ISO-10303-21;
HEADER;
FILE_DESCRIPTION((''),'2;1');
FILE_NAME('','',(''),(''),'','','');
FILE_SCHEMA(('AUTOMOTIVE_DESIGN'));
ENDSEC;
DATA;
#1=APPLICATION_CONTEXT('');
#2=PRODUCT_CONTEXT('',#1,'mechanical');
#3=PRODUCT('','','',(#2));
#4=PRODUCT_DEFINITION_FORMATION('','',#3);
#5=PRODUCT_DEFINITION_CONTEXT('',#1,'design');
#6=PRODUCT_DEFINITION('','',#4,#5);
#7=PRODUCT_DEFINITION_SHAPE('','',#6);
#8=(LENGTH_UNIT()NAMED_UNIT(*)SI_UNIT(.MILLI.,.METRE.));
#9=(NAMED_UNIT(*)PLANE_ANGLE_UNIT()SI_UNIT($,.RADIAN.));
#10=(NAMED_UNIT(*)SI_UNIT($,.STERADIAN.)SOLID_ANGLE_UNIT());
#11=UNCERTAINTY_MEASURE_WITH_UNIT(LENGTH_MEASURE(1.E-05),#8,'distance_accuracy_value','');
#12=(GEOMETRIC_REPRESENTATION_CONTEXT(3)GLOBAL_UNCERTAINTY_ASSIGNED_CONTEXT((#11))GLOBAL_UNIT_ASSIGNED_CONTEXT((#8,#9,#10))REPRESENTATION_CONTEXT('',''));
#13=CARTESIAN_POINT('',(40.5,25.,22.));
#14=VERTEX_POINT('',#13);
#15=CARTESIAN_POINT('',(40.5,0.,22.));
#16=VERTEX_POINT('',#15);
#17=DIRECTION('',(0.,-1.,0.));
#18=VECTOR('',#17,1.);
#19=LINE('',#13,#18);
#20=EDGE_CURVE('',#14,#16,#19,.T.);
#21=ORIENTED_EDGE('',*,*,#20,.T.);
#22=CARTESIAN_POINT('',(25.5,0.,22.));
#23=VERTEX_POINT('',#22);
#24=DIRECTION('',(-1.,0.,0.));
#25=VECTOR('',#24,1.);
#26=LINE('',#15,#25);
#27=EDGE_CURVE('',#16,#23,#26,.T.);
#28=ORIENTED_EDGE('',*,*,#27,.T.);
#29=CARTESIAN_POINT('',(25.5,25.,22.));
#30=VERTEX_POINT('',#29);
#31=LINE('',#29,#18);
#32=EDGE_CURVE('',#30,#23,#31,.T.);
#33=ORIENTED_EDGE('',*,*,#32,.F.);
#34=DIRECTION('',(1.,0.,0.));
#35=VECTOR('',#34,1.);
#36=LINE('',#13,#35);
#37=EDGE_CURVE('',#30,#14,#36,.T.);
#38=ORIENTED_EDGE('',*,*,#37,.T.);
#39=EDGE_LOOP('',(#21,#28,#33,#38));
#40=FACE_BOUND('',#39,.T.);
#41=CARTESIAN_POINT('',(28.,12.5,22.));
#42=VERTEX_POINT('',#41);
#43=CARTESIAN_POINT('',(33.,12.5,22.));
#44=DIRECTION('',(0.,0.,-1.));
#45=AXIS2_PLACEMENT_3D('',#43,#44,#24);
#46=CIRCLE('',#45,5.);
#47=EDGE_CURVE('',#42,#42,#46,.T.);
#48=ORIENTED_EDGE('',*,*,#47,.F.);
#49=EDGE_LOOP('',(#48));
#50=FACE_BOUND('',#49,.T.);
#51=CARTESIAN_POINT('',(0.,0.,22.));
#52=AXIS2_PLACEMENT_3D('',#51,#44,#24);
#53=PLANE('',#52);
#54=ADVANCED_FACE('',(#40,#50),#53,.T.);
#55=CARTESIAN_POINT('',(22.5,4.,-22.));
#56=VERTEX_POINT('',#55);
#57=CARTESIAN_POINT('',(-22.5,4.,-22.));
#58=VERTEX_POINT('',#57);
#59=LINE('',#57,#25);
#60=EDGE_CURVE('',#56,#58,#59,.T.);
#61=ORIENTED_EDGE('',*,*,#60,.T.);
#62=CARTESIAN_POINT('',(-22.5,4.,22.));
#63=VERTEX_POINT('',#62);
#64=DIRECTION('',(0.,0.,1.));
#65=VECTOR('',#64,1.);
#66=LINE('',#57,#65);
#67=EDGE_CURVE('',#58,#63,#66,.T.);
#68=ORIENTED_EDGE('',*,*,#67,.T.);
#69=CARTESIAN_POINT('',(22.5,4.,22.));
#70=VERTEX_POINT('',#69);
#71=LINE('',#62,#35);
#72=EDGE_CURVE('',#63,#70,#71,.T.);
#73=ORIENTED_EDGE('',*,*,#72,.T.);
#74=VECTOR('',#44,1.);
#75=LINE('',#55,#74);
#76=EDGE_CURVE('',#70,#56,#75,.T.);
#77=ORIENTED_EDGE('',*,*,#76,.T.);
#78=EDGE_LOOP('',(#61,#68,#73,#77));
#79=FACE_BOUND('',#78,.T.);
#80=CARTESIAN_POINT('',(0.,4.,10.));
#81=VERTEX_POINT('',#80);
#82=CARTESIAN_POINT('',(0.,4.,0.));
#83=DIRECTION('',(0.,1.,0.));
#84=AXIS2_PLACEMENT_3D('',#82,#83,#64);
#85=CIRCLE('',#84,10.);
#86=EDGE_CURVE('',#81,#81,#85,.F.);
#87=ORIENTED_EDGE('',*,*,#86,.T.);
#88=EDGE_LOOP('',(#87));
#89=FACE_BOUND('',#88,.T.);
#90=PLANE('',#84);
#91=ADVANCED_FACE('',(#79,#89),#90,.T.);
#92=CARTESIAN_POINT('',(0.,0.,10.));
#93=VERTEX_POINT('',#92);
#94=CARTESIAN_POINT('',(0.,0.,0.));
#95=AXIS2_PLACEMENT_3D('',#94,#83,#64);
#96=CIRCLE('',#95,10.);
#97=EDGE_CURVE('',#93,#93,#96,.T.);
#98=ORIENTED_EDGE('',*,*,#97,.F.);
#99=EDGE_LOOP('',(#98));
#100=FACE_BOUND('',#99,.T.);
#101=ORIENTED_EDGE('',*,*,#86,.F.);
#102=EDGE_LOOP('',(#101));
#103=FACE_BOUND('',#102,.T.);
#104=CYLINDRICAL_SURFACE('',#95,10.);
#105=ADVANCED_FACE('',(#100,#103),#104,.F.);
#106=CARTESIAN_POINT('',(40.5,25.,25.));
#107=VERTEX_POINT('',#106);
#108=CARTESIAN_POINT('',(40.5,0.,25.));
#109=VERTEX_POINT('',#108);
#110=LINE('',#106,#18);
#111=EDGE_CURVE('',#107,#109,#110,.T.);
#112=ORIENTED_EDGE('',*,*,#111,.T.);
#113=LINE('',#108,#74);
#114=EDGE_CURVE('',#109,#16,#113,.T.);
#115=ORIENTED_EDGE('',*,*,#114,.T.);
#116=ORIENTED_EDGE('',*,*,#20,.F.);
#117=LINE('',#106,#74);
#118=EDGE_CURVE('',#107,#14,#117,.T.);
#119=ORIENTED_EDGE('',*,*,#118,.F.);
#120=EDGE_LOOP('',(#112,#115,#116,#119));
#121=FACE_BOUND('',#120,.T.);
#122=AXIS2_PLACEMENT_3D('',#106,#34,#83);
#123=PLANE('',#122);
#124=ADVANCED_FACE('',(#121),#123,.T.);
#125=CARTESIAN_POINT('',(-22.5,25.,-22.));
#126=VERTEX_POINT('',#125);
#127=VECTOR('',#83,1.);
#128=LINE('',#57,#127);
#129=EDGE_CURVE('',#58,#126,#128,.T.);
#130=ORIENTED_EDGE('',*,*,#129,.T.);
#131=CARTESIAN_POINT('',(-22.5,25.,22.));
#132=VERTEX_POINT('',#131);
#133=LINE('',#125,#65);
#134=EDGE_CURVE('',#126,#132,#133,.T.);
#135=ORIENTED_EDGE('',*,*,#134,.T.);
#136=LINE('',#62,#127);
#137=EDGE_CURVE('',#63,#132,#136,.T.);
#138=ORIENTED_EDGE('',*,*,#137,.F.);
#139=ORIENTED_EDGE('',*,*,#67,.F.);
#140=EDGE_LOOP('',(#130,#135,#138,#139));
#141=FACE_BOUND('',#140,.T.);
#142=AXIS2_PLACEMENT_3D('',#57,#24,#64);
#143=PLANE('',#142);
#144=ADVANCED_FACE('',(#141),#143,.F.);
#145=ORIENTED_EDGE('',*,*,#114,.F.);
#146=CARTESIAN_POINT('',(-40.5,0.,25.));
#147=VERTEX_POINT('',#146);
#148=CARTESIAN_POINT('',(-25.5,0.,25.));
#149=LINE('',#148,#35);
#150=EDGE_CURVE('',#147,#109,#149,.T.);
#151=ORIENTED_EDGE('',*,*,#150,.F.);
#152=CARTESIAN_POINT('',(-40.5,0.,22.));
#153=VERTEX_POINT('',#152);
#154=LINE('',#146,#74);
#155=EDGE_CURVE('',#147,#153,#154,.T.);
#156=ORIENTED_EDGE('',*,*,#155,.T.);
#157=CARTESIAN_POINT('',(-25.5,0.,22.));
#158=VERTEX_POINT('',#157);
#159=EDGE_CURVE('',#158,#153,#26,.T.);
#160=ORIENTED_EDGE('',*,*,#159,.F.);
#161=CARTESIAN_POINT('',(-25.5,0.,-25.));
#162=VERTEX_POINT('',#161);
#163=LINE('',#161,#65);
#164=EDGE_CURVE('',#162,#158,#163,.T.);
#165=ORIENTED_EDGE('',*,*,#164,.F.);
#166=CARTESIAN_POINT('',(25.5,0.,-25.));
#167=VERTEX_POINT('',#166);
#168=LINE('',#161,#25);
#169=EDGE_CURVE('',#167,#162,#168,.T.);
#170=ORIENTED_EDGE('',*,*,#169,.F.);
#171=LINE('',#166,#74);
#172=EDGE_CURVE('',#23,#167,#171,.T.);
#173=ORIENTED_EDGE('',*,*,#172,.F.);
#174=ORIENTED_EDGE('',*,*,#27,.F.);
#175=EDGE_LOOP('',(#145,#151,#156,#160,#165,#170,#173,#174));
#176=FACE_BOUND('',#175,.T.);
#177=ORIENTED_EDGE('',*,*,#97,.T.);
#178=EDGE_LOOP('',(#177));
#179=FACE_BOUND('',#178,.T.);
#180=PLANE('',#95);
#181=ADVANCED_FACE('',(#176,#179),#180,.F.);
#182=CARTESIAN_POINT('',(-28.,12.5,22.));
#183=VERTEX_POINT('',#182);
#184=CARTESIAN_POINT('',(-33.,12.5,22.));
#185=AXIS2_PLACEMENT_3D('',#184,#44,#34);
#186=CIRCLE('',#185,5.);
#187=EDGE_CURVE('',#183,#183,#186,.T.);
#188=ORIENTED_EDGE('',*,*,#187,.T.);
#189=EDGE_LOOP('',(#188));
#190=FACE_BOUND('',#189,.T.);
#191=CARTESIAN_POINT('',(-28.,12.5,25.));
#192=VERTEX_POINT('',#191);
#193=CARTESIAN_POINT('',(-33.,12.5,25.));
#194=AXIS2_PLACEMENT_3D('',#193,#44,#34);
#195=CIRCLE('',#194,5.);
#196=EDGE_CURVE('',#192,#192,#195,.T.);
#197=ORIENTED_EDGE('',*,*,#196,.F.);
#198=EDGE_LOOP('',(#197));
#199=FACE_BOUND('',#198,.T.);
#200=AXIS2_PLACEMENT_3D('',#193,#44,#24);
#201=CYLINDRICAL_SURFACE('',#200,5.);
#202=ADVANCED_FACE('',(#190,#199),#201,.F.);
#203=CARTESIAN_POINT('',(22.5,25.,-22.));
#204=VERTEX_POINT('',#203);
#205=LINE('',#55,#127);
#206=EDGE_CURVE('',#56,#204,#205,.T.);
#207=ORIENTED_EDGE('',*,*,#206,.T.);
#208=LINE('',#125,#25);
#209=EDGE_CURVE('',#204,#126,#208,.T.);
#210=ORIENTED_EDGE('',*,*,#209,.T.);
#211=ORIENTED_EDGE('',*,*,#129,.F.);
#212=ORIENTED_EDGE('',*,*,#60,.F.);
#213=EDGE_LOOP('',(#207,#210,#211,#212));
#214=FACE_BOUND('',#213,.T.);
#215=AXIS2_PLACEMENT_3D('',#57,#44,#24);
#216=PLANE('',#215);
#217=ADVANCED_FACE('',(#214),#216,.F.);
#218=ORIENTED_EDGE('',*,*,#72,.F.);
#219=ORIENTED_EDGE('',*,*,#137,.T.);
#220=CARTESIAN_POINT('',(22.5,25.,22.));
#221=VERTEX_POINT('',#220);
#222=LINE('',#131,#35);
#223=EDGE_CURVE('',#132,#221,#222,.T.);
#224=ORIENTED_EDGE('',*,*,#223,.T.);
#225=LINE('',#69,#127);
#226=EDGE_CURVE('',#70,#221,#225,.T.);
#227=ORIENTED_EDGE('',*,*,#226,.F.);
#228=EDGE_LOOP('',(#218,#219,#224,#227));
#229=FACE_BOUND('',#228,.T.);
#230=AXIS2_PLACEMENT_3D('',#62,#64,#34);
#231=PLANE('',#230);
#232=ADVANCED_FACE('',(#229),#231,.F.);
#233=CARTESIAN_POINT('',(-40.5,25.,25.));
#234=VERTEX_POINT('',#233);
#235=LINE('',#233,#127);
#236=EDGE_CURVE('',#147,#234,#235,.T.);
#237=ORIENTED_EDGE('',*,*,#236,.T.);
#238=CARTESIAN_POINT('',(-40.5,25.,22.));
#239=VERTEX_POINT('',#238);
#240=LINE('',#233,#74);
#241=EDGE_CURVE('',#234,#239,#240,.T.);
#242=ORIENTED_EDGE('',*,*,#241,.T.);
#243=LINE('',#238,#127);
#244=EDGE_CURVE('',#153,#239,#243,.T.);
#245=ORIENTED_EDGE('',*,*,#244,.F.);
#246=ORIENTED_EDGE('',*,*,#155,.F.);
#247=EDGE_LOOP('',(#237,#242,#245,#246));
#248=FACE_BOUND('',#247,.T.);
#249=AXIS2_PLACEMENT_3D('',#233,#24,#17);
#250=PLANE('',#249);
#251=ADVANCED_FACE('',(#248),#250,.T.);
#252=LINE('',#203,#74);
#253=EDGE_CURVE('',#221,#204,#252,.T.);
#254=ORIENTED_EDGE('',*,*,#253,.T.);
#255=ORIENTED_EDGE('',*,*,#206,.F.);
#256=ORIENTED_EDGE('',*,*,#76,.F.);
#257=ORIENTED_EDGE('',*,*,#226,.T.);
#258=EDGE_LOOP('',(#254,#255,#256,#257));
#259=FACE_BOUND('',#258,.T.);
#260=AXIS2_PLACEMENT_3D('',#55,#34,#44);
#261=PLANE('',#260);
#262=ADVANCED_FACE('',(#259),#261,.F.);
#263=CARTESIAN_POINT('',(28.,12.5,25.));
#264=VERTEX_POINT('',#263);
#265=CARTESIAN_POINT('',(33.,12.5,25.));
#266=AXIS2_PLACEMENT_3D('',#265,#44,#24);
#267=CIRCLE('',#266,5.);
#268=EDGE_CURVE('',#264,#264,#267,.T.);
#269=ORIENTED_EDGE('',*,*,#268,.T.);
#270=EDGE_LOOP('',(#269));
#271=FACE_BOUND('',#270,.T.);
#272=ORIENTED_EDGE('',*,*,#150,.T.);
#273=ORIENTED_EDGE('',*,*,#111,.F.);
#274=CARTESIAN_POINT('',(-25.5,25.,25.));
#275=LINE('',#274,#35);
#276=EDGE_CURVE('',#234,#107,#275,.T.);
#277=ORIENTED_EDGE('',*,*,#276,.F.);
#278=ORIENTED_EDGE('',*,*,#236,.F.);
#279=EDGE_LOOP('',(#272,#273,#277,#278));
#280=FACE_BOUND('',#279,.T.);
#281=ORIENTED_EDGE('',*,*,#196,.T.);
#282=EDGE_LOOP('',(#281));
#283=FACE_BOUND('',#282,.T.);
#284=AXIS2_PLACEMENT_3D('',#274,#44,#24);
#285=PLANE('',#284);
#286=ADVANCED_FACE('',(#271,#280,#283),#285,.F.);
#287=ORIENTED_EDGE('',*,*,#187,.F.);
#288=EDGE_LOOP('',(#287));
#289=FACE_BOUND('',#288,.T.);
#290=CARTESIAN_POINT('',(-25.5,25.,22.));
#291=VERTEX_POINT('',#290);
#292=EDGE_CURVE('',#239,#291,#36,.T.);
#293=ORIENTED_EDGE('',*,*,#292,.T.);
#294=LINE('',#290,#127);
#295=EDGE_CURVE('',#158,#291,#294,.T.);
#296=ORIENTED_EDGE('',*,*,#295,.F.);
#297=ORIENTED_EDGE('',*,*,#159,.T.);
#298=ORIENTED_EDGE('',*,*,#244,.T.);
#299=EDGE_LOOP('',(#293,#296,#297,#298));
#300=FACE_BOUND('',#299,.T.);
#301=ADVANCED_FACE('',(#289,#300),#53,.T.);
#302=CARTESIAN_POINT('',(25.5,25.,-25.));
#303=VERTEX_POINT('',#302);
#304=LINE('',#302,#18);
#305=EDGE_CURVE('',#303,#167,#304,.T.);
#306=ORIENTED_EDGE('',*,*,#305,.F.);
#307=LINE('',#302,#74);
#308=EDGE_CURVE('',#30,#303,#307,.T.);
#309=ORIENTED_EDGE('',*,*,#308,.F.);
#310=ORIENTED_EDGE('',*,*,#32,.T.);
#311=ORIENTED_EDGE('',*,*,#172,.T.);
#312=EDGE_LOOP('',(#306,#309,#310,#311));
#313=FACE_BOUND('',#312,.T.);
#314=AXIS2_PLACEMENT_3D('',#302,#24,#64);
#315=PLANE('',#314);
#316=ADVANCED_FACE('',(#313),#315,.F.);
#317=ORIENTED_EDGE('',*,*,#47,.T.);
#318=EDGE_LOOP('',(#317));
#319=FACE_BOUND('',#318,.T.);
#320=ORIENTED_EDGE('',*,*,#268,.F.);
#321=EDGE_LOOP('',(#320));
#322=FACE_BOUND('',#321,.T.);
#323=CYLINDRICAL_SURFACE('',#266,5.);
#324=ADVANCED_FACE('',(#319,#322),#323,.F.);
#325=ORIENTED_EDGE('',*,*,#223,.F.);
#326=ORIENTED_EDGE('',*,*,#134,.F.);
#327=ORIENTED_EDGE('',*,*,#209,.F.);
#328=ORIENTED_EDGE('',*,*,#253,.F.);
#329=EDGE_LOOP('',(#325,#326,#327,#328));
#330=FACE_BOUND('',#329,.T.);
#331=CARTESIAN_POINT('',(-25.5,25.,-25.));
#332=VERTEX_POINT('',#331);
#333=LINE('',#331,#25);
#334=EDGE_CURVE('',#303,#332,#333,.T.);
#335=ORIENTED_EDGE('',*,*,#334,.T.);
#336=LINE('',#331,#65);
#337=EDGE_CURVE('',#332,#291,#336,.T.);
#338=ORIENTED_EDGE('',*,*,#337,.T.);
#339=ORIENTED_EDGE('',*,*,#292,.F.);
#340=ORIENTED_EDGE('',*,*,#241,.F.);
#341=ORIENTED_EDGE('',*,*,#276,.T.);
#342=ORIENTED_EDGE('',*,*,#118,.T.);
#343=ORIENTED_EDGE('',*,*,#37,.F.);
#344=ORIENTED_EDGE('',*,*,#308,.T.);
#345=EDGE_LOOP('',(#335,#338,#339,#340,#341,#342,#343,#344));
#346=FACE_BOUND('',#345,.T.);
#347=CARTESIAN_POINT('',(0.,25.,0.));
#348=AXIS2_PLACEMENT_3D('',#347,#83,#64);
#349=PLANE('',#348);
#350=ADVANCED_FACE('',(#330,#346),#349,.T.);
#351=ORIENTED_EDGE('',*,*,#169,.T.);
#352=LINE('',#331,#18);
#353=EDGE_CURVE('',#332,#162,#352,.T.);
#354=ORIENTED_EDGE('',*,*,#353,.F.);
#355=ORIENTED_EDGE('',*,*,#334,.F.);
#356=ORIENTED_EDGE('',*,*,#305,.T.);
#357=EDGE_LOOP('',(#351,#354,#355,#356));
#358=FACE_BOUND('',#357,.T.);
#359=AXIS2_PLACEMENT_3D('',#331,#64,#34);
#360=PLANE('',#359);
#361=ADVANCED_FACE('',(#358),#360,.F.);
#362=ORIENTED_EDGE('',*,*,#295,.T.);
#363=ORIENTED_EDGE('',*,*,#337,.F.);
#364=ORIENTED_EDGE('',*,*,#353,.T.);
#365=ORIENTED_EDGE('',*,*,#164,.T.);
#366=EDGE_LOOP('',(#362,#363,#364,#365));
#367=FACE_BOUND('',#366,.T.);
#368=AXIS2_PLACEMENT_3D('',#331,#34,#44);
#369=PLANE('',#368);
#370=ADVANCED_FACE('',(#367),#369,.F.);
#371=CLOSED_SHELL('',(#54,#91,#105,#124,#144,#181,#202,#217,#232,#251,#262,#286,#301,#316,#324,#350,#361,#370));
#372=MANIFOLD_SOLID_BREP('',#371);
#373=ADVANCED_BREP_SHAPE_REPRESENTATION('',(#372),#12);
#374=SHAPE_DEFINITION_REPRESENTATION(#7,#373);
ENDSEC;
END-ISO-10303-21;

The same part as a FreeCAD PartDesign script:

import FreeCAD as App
import Part
import Sketcher

V = App.Vector

doc = App.newDocument("Part")
params = doc.addObject("Spreadsheet::Sheet", "Params")
for row, (alias, value) in enumerate([
    ("sketch1_width", "51 mm"),
    ("sketch1_height", "50 mm"),
    ("pad1_length", "25 mm"),
    ("sketch2_diameter", "20 mm"),
    ("sketch3_width", "45 mm"),
    ("sketch3_height", "44 mm"),
    ("pocket2_length", "21 mm"),
    ("sketch4_diameter", "10 mm"),
    ("sketch4_width", "81 mm"),
    ("sketch4_height", "25 mm"),
    ("pad2_length", "3 mm"),
], start=1):
    params.set(f"A{row}", alias)
    params.set(f"B{row}", "=" + value)
    params.setAlias(f"B{row}", alias)

body = doc.addObject("PartDesign::Body", "Body")

# Sketch on XZ plane
sketch1 = body.newObject("Sketcher::SketchObject", "Sketch")
sketch1.AttachmentSupport = (doc.getObject("XZ_Plane"), [""])
sketch1.MapMode = "FlatFace"
sketch1.addGeometry(Part.LineSegment(V(-26, -25, 0), V(-26, 25, 0)), False)
sketch1.addGeometry(Part.LineSegment(V(-26, 25, 0), V(26, 25, 0)), False)
sketch1.addGeometry(Part.LineSegment(V(26, 25, 0), V(26, -25, 0)), False)
sketch1.addGeometry(Part.LineSegment(V(26, -25, 0), V(-26, -25, 0)), False)
sketch1.addConstraint(Sketcher.Constraint("Coincident", 0, 2, 1, 1))
sketch1.addConstraint(Sketcher.Constraint("Coincident", 1, 2, 2, 1))
sketch1.addConstraint(Sketcher.Constraint("Coincident", 2, 2, 3, 1))
sketch1.addConstraint(Sketcher.Constraint("Coincident", 3, 2, 0, 1))
sketch1.addConstraint(Sketcher.Constraint("Vertical", 0))
sketch1.addConstraint(Sketcher.Constraint("Horizontal", 1))
sketch1.addConstraint(Sketcher.Constraint("Vertical", 2))
sketch1.addConstraint(Sketcher.Constraint("Horizontal", 3))
sketch1.addConstraint(Sketcher.Constraint("Symmetric", 0, 2, 2, 2, -1, 1))
sketch1.addConstraint(Sketcher.Constraint("DistanceX", 1, 1, 1, 2, 51.0))
sketch1.addConstraint(Sketcher.Constraint("DistanceY", 0, 1, 0, 2, 50.0))
sketch1.setExpression("Constraints[9]", "Params.sketch1_width")
sketch1.setExpression("Constraints[10]", "Params.sketch1_height")
pad1 = body.newObject("PartDesign::Pad", "Pad")
pad1.Profile = sketch1
pad1.setExpression("Length", "Params.pad1_length")
pad1.Reversed = True

# Sketch on XZ plane
sketch2 = body.newObject("Sketcher::SketchObject", "Sketch001")
sketch2.AttachmentSupport = (doc.getObject("XZ_Plane"), [""])
sketch2.MapMode = "FlatFace"
sketch2.AttachmentOffset = App.Placement(V(0, 0, -25), App.Rotation())
sketch2.addGeometry(Part.Circle(V(0, 0, 0), V(0, 0, 1), 10), False)
sketch2.addConstraint(Sketcher.Constraint("Coincident", 0, 3, -1, 1))
sketch2.addConstraint(Sketcher.Constraint("Diameter", 0, 20.0))
sketch2.setExpression("Constraints[1]", "Params.sketch2_diameter")
pocket1 = body.newObject("PartDesign::Pocket", "Pocket")
pocket1.Profile = sketch2
pocket1.Type = "ThroughAll"
pocket1.Reversed = True

# Sketch on XZ plane
sketch3 = body.newObject("Sketcher::SketchObject", "Sketch002")
sketch3.AttachmentSupport = (doc.getObject("XZ_Plane"), [""])
sketch3.MapMode = "FlatFace"
sketch3.AttachmentOffset = App.Placement(V(0, 0, -25), App.Rotation())
sketch3.addGeometry(Part.LineSegment(V(-22, -22, 0), V(-22, 22, 0)), False)
sketch3.addGeometry(Part.LineSegment(V(-22, 22, 0), V(22, 22, 0)), False)
sketch3.addGeometry(Part.LineSegment(V(22, 22, 0), V(22, -22, 0)), False)
sketch3.addGeometry(Part.LineSegment(V(22, -22, 0), V(-22, -22, 0)), False)
sketch3.addConstraint(Sketcher.Constraint("Coincident", 0, 2, 1, 1))
sketch3.addConstraint(Sketcher.Constraint("Coincident", 1, 2, 2, 1))
sketch3.addConstraint(Sketcher.Constraint("Coincident", 2, 2, 3, 1))
sketch3.addConstraint(Sketcher.Constraint("Coincident", 3, 2, 0, 1))
sketch3.addConstraint(Sketcher.Constraint("Vertical", 0))
sketch3.addConstraint(Sketcher.Constraint("Horizontal", 1))
sketch3.addConstraint(Sketcher.Constraint("Vertical", 2))
sketch3.addConstraint(Sketcher.Constraint("Horizontal", 3))
sketch3.addConstraint(Sketcher.Constraint("Symmetric", 0, 2, 2, 2, -1, 1))
sketch3.addConstraint(Sketcher.Constraint("DistanceX", 1, 1, 1, 2, 45.0))
sketch3.addConstraint(Sketcher.Constraint("DistanceY", 0, 1, 0, 2, 44.0))
sketch3.setExpression("Constraints[9]", "Params.sketch3_width")
sketch3.setExpression("Constraints[10]", "Params.sketch3_height")
pocket2 = body.newObject("PartDesign::Pocket", "Pocket001")
pocket2.Profile = sketch3
pocket2.setExpression("Length", "Params.pocket2_length")
pocket2.Reversed = True

# Sketch on XY plane
sketch4 = body.newObject("Sketcher::SketchObject", "Sketch003")
sketch4.AttachmentSupport = (doc.getObject("XY_Plane"), [""])
sketch4.MapMode = "FlatFace"
sketch4.AttachmentOffset = App.Placement(V(0, 0, 22), App.Rotation())
sketch4.addGeometry(Part.LineSegment(V(40, 25, 0), V(40, 0, 0)), False)
sketch4.addGeometry(Part.LineSegment(V(40, 0, 0), V(-40, 0, 0)), False)
sketch4.addGeometry(Part.LineSegment(V(-40, 0, 0), V(-40, 25, 0)), False)
sketch4.addGeometry(Part.LineSegment(V(-40, 25, 0), V(40, 25, 0)), False)
sketch4.addGeometry(Part.Circle(V(33, 12, 0), V(0, 0, 1), 5), False)
sketch4.addGeometry(Part.Circle(V(-33, 12, 0), V(0, 0, 1), 5), False)
sketch4.addConstraint(Sketcher.Constraint("Coincident", 0, 2, 1, 1))
sketch4.addConstraint(Sketcher.Constraint("Coincident", 1, 2, 2, 1))
sketch4.addConstraint(Sketcher.Constraint("Coincident", 2, 2, 3, 1))
sketch4.addConstraint(Sketcher.Constraint("Coincident", 3, 2, 0, 1))
sketch4.addConstraint(Sketcher.Constraint("Vertical", 0))
sketch4.addConstraint(Sketcher.Constraint("Horizontal", 1))
sketch4.addConstraint(Sketcher.Constraint("Vertical", 2))
sketch4.addConstraint(Sketcher.Constraint("Horizontal", 3))
sketch4.addConstraint(Sketcher.Constraint("Equal", 4, 5))
sketch4.addConstraint(Sketcher.Constraint("Symmetric", 0, 2, 1, 2, -1, 1))
sketch4.addConstraint(Sketcher.Constraint("Symmetric", 4, 3, 5, 3, -2))
sketch4.addConstraint(Sketcher.Constraint("Diameter", 4, 10.0))
sketch4.addConstraint(Sketcher.Constraint("DistanceX", 1, 2, 1, 1, 81.0))
sketch4.addConstraint(Sketcher.Constraint("DistanceY", 0, 2, 0, 1, 25.0))
sketch4.addConstraint(Sketcher.Constraint("DistanceX", -1, 1, 4, 3, 33.0))
sketch4.addConstraint(Sketcher.Constraint("DistanceY", -1, 1, 4, 3, 12.5))
sketch4.setExpression("Constraints[11]", "Params.sketch4_diameter")
sketch4.setExpression("Constraints[12]", "Params.sketch4_width")
sketch4.setExpression("Constraints[13]", "Params.sketch4_height")
pad2 = body.newObject("PartDesign::Pad", "Pad001")
pad2.Profile = sketch4
pad2.setExpression("Length", "Params.pad2_length")

doc.recompute()
